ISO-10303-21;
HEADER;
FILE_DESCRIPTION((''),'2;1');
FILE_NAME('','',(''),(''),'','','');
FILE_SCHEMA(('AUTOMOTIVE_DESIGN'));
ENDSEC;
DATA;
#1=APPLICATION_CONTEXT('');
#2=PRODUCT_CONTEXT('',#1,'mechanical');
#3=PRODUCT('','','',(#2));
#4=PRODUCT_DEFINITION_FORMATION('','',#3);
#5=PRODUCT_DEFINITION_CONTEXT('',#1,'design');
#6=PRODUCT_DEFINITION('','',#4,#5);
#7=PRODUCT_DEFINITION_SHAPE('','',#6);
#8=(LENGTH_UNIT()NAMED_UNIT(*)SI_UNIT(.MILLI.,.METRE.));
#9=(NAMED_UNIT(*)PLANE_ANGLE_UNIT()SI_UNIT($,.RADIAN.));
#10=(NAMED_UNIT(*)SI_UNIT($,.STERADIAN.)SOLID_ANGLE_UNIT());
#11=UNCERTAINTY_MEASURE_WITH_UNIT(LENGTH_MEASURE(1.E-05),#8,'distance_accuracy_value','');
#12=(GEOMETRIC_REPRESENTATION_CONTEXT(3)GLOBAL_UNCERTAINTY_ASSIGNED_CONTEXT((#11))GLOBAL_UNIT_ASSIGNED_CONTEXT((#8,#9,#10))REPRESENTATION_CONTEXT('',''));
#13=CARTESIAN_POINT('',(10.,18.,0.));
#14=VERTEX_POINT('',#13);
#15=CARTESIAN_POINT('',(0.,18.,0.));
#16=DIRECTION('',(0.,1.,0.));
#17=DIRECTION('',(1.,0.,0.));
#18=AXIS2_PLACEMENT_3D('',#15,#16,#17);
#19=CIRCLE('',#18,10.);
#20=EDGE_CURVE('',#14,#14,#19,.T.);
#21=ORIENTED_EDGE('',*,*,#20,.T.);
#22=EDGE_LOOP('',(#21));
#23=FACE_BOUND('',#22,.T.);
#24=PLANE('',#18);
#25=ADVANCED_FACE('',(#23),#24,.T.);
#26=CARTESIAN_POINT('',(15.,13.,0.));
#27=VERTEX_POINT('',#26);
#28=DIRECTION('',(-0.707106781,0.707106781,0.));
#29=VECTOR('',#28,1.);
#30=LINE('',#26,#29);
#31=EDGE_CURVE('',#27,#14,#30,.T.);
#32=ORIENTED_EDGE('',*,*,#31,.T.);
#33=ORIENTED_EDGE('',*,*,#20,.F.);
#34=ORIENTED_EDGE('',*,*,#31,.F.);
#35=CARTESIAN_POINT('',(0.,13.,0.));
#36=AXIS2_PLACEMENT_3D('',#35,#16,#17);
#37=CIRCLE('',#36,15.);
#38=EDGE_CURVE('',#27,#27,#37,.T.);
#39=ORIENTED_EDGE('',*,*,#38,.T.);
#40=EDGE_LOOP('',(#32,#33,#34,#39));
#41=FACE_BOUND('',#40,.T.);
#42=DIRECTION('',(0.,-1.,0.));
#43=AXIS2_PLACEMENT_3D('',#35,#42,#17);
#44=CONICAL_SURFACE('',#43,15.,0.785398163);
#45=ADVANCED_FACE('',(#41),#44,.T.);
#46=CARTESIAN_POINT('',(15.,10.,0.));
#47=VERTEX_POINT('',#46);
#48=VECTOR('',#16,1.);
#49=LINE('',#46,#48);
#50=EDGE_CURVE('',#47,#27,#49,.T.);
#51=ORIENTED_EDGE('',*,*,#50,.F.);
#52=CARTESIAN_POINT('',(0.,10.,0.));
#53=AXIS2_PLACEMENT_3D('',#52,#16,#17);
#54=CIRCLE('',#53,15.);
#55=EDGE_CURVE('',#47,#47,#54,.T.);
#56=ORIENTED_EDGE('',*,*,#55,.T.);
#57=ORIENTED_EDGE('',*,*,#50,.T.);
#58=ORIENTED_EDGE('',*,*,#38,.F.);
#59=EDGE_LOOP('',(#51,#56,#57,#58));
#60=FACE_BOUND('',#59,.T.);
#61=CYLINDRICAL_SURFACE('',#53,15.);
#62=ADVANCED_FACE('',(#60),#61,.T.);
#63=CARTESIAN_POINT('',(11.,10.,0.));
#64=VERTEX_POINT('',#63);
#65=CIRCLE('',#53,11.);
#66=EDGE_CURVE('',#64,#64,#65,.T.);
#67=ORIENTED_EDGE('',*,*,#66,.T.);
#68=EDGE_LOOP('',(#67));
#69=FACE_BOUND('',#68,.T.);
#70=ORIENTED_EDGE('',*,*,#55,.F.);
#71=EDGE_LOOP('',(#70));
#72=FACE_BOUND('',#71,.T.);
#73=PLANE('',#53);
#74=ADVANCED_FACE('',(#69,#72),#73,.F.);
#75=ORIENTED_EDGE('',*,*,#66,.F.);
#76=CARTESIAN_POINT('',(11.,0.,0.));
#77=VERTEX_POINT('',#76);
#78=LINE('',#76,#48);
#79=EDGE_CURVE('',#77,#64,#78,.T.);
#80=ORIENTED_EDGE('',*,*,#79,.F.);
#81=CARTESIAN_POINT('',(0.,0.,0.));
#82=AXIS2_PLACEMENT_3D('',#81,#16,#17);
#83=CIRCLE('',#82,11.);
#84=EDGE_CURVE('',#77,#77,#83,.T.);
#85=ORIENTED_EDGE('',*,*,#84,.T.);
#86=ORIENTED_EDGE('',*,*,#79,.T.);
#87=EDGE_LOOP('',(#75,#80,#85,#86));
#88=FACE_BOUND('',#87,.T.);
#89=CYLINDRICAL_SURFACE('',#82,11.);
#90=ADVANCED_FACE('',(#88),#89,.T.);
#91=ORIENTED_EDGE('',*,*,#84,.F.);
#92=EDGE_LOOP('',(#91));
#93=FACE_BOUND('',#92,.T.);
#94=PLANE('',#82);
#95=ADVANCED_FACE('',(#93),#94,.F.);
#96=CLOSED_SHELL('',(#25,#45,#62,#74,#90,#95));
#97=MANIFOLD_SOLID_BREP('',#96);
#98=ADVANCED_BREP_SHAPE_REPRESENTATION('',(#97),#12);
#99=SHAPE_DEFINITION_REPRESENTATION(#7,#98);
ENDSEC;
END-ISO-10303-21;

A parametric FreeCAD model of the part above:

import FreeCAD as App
import Part
import Sketcher

V = App.Vector


def add_polygon(sketch, points):
    """Adds a closed chain of lines whose ends are joined by coincident constraints."""
    first, n = sketch.GeometryCount, len(points)
    for a, b in zip(points, points[1:] + points[:1]):
        sketch.addGeometry(Part.LineSegment(App.Vector(*a, 0), App.Vector(*b, 0)), False)
    for i in range(n):
        sketch.addConstraint(Sketcher.Constraint("Coincident", first + i, 2, first + (i + 1) % n, 1))

doc = App.newDocument("Part")
params = doc.addObject("Spreadsheet::Sheet", "Params")
for row, (alias, value) in enumerate([
    ("sketch1_width", "10 mm"),
    ("sketch1_height", "3 mm"),
    ("sketch1_width2", "11 mm"),
    ("revolution_angle", "360 deg"),
], start=1):
    params.set(f"A{row}", alias)
    params.set(f"B{row}", "=" + value)
    params.setAlias(f"B{row}", alias)

body = doc.addObject("PartDesign::Body", "Body")

sketch1 = body.newObject("Sketcher::SketchObject", "Sketch")
sketch1.AttachmentSupport = (doc.getObject("XY_Plane"), [""])
sketch1.MapMode = "FlatFace"
add_polygon(sketch1, [(0, 18), (0, 0), (11, 0), (11, 10), (15, 10), (15, 13), (10, 18)])
sketch1.addConstraint([
    Sketcher.Constraint("Vertical", 0),
    Sketcher.Constraint("Horizontal", 1),
    Sketcher.Constraint("Vertical", 2),
    Sketcher.Constraint("Horizontal", 3),
    Sketcher.Constraint("Vertical", 4),
    Sketcher.Constraint("Horizontal", 6),
    Sketcher.Constraint("Coincident", 0, 2, -1, 1),
    Sketcher.Constraint("Equal", 6, 2),
    Sketcher.Constraint("DistanceX", 6, 2, 6, 1, 10.0),
    Sketcher.Constraint("DistanceY", 4, 1, 4, 2, 3.0),
    Sketcher.Constraint("DistanceX", 5, 2, 4, 2, 5.0),
    Sketcher.Constraint("DistanceY", 4, 2, 5, 2, 5.0),
    Sketcher.Constraint("DistanceX", 1, 1, 1, 2, 11.0),
])
sketch1.setExpression("Constraints[15]", "Params.sketch1_width")
sketch1.setExpression("Constraints[16]", "Params.sketch1_height")
sketch1.setExpression("Constraints[19]", "Params.sketch1_width2")
revolution = body.newObject("PartDesign::Revolution", "Revolution")
revolution.Profile = sketch1
revolution.ReferenceAxis = (sketch1, ["V_Axis"])
revolution.setExpression("Angle", "Params.revolution_angle")

doc.recompute()
